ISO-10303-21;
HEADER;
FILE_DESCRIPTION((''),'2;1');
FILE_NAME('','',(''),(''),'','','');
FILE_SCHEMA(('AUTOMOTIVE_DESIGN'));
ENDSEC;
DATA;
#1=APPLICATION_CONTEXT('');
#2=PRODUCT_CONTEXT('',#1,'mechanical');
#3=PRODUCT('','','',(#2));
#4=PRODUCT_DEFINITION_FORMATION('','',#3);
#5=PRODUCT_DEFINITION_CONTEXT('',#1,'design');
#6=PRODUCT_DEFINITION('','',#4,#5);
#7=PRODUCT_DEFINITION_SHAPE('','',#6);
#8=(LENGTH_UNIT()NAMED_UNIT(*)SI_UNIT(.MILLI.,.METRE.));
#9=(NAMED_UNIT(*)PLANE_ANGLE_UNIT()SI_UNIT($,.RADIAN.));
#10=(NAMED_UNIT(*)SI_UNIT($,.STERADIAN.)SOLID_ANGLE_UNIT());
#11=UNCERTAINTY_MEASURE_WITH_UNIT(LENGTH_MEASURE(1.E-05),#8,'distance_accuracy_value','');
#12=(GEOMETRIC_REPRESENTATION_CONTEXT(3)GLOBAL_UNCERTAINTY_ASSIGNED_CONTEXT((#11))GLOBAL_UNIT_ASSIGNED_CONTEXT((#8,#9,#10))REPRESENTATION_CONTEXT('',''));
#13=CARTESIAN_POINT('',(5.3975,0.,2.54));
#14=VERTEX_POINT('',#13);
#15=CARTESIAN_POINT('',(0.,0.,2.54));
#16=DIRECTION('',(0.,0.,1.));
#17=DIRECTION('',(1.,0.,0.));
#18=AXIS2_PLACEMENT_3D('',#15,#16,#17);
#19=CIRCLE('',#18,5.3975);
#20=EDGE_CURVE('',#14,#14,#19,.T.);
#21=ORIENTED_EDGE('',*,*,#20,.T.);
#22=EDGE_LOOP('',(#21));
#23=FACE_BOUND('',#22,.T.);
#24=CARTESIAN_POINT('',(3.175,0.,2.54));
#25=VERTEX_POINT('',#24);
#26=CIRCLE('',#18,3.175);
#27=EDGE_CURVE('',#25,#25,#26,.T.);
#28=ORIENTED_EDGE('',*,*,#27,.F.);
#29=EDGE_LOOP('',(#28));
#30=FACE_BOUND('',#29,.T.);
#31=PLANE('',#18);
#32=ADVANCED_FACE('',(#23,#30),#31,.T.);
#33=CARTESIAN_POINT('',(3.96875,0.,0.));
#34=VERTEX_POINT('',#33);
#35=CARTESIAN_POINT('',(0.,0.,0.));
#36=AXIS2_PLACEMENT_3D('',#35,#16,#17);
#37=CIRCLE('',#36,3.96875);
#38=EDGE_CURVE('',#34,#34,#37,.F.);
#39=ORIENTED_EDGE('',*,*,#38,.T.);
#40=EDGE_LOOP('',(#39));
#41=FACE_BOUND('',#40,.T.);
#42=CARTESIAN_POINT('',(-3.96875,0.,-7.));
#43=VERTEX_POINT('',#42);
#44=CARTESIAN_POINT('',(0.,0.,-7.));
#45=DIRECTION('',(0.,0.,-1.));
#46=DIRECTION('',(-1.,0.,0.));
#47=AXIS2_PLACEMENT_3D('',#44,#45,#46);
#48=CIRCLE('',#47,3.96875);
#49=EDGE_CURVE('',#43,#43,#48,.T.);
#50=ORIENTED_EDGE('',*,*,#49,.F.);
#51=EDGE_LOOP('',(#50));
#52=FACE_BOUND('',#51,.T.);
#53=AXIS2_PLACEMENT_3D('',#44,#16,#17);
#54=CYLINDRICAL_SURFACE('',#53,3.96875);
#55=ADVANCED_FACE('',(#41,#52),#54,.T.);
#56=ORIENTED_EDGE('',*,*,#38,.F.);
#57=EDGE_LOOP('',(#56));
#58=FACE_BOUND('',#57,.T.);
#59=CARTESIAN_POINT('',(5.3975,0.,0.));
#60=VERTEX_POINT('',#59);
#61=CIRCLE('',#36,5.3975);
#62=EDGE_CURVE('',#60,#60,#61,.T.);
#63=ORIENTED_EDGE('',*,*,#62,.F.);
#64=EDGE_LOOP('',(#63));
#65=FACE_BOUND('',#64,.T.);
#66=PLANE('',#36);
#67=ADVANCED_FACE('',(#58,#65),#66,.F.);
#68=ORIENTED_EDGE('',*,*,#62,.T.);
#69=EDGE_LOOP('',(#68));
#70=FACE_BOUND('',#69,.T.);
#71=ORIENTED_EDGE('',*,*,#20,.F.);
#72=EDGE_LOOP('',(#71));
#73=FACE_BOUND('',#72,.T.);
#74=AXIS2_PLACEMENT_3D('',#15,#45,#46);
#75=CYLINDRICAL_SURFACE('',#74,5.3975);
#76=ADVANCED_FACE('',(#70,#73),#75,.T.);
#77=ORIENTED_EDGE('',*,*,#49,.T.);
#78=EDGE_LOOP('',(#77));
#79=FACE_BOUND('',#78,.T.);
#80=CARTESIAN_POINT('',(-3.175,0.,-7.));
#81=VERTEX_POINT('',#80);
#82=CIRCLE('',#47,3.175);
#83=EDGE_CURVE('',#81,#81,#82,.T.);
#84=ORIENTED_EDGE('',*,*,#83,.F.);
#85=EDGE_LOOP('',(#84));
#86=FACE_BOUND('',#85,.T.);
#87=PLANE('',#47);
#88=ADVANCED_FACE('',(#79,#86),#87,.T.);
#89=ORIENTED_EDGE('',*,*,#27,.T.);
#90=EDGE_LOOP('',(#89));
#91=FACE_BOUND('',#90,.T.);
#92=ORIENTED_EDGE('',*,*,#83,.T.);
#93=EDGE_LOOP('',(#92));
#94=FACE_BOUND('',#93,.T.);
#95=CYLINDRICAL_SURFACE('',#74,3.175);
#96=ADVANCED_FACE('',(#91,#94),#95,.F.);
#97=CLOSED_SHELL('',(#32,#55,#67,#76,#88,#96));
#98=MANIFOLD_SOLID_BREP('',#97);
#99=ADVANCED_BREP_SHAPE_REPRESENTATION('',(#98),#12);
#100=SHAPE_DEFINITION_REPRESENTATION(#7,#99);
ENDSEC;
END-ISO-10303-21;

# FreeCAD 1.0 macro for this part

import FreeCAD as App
import Part
import Sketcher
Q = App.Units.Quantity

doc = App.newDocument("Part")
body = doc.addObject("PartDesign::Body", "Body")

# Sketch on XY plane
sketch1 = body.newObject("Sketcher::SketchObject", "Sketch")
sketch1.AttachmentSupport = (doc.getObject("XY_Plane"), [""])
sketch1.MapMode = "FlatFace"
sketch1.addGeometry(Part.Circle(App.Vector(0, 0, 0), App.Vector(0, 0, 1), 5.4), False)
sketch1.addGeometry(Part.Circle(App.Vector(0, 0, 0), App.Vector(0, 0, 1), 3.2), False)
sketch1.addConstraint(Sketcher.Constraint("Coincident", 0, 3, -1, 1))
sketch1.addConstraint(Sketcher.Constraint("Coincident", 1, 3, -1, 1))
sketch1.addConstraint(Sketcher.Constraint("Diameter", 1, Q("0.25 in")))
sketch1.addConstraint(Sketcher.Constraint("Diameter", 0, Q("0.425 in")))
pad1 = body.newObject("PartDesign::Pad", "Pad")
pad1.Profile = sketch1
pad1.Length = Q("0.1 in")

# Sketch on XY plane
sketch2 = body.newObject("Sketcher::SketchObject", "Sketch001")
sketch2.AttachmentSupport = (doc.getObject("XY_Plane"), [""])
sketch2.MapMode = "FlatFace"
sketch2.addGeometry(Part.Circle(App.Vector(0, 0, 0), App.Vector(0, 0, 1), 4), False)
sketch2.addGeometry(Part.Circle(App.Vector(0, 0, 0), App.Vector(0, 0, 1), 3.2), False)
sketch2.addConstraint(Sketcher.Constraint("Coincident", 0, 3, -1, 1))
sketch2.addConstraint(Sketcher.Constraint("Coincident", 1, 3, -1, 1))
sketch2.addConstraint(Sketcher.Constraint("Diameter", 1, Q("0.25 in")))
sketch2.addConstraint(Sketcher.Constraint("Diameter", 0, Q("0.3125 in")))
pad2 = body.newObject("PartDesign::Pad", "Pad001")
pad2.Profile = sketch2
pad2.Length = 7
pad2.Reversed = True

doc.recompute()
